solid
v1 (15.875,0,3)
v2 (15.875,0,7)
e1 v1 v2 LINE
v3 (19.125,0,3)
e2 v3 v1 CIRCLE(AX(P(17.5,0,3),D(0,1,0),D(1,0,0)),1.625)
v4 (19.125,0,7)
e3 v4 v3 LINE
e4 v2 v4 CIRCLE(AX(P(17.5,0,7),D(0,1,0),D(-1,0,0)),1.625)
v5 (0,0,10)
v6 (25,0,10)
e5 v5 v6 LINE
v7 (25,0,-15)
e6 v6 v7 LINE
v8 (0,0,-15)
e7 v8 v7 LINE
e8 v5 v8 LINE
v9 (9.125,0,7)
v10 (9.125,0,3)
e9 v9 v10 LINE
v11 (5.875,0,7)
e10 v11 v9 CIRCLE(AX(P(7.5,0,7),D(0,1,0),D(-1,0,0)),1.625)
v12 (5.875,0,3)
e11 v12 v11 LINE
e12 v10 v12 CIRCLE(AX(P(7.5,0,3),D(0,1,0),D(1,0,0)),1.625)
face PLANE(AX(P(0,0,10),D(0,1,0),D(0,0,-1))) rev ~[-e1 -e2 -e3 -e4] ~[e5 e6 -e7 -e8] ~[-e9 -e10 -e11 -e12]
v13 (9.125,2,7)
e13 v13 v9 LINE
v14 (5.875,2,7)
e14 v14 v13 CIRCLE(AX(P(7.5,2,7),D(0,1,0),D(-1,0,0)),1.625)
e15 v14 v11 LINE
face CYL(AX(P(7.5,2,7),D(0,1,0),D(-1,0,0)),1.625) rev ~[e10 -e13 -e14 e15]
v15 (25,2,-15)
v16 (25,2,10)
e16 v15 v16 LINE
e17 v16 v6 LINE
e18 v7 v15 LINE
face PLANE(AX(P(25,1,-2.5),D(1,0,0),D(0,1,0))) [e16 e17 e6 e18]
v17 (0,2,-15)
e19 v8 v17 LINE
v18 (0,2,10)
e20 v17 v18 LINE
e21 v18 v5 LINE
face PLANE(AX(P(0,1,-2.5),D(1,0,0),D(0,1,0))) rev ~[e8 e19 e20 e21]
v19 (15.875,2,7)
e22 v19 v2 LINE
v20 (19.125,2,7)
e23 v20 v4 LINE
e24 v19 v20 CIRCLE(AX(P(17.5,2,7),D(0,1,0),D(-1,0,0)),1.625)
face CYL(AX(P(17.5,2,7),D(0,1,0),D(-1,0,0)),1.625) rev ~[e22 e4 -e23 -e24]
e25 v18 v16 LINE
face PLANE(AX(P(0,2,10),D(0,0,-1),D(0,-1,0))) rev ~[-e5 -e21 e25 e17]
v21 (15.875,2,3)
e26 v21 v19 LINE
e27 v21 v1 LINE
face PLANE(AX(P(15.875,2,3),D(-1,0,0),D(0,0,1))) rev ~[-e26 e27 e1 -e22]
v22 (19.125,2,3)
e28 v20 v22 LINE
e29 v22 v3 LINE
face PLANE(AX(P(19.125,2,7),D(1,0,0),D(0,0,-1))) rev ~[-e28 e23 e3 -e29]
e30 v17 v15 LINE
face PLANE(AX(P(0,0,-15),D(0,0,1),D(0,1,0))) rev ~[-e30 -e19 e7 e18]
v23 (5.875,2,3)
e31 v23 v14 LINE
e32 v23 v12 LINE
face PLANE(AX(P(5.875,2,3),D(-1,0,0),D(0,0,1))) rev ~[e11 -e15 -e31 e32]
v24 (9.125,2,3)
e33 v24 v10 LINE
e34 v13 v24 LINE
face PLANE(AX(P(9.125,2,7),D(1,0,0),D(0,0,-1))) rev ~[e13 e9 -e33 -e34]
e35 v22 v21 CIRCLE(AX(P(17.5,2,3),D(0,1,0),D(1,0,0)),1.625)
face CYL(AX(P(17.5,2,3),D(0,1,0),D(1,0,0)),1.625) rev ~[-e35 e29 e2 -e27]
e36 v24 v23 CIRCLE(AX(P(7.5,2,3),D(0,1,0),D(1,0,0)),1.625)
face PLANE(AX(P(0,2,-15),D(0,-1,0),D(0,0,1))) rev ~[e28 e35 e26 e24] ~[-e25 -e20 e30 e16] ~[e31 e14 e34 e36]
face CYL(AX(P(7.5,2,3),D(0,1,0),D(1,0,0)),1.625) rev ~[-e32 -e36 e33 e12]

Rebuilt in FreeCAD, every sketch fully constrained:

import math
import FreeCAD as App
import Part
import Sketcher


def add_polygon(sketch, points):
    """Adds a closed chain of lines whose ends are joined by coincident constraints."""
    first, n = sketch.GeometryCount, len(points)
    for a, b in zip(points, points[1:] + points[:1]):
        sketch.addGeometry(Part.LineSegment(App.Vector(*a, 0), App.Vector(*b, 0)), False)
    for i in range(n):
        sketch.addConstraint(Sketcher.Constraint("Coincident", first + i, 2, first + (i + 1) % n, 1))

doc = App.newDocument("Part")
body = doc.addObject("PartDesign::Body", "Body")

sketch1 = body.newObject("Sketcher::SketchObject", "Sketch")
sketch1.AttachmentSupport = (doc.getObject("YZ_Plane"), [""])
sketch1.MapMode = "FlatFace"
add_polygon(sketch1, [(0, 10), (0, -15), (2, -15), (2, 10)])
sketch1.addConstraint(Sketcher.Constraint("Vertical", 0))
sketch1.addConstraint(Sketcher.Constraint("Horizontal", 1))
sketch1.addConstraint(Sketcher.Constraint("Vertical", 2))
sketch1.addConstraint(Sketcher.Constraint("Horizontal", 3))
sketch1.addConstraint(Sketcher.Constraint("PointOnObject", 0, 2, -2))
sketch1.addConstraint(Sketcher.Constraint("DistanceX", 1, 1, 1, 2, 2.0))
sketch1.addConstraint(Sketcher.Constraint("DistanceY", 0, 2, 0, 1, 25.0))
sketch1.addConstraint(Sketcher.Constraint("DistanceY", 0, 2, -1, 1, 15.0))
pad1 = body.newObject("PartDesign::Pad", "Pad")
pad1.Profile = sketch1
pad1.Length = 25

sketch2 = body.newObject("Sketcher::SketchObject", "Sketch001")
sketch2.AttachmentSupport = (doc.getObject("XZ_Plane"), [""])
sketch2.MapMode = "FlatFace"
sketch2.AttachmentOffset = App.Placement(App.Vector(0, 0, -2), App.Rotation())
sketch2.addGeometry(Part.LineSegment(App.Vector(15.875, 3, 0), App.Vector(15.875, 7, 0)), False)
sketch2.addGeometry(Part.ArcOfCircle(Part.Circle(App.Vector(17.5, 7, 0), App.Vector(0, 0, 1), 1.625), math.radians(0), math.radians(180)), False)
sketch2.addGeometry(Part.LineSegment(App.Vector(19.125, 7, 0), App.Vector(19.125, 3, 0)), False)
sketch2.addGeometry(Part.ArcOfCircle(Part.Circle(App.Vector(17.5, 3, 0), App.Vector(0, 0, 1), 1.625), math.radians(180), math.radians(360)), False)
sketch2.addGeometry(Part.LineSegment(App.Vector(5.875, 3, 0), App.Vector(5.875, 7, 0)), False)
sketch2.addGeometry(Part.ArcOfCircle(Part.Circle(App.Vector(7.5, 7, 0), App.Vector(0, 0, 1), 1.625), math.radians(0), math.radians(180)), False)
sketch2.addGeometry(Part.LineSegment(App.Vector(9.125, 7, 0), App.Vector(9.125, 3, 0)), False)
sketch2.addGeometry(Part.ArcOfCircle(Part.Circle(App.Vector(7.5, 3, 0), App.Vector(0, 0, 1), 1.625), math.radians(180), math.radians(360)), False)
sketch2.addConstraint(Sketcher.Constraint("Tangent", 0, 2, 1, 2))
sketch2.addConstraint(Sketcher.Constraint("Tangent", 1, 1, 2, 1))
sketch2.addConstraint(Sketcher.Constraint("Tangent", 2, 2, 3, 2))
sketch2.addConstraint(Sketcher.Constraint("Tangent", 3, 1, 0, 1))
sketch2.addConstraint(Sketcher.Constraint("Tangent", 4, 2, 5, 2))
sketch2.addConstraint(Sketcher.Constraint("Tangent", 5, 1, 6, 1))
sketch2.addConstraint(Sketcher.Constraint("Tangent", 6, 2, 7, 2))
sketch2.addConstraint(Sketcher.Constraint("Tangent", 7, 1, 4, 1))
sketch2.addConstraint(Sketcher.Constraint("Vertical", 0))
sketch2.addConstraint(Sketcher.Constraint("Vertical", 2))
sketch2.addConstraint(Sketcher.Constraint("Vertical", 4))
sketch2.addConstraint(Sketcher.Constraint("Vertical", 6))
sketch2.addConstraint(Sketcher.Constraint("Equal", 3, 5))
sketch2.addConstraint(Sketcher.Constraint("Horizontal", 1, 3, 5, 3))
sketch2.addConstraint(Sketcher.Constraint("Horizontal", 3, 3, 7, 3))
sketch2.addConstraint(Sketcher.Constraint("DistanceY", 0, 1, 0, 2, 4.0))
sketch2.addConstraint(Sketcher.Constraint("DistanceY", -1, 1, 1, 3, 7.0))
sketch2.addConstraint(Sketcher.Constraint("Radius", 1, 1.625))
sketch2.addConstraint(Sketcher.Constraint("DistanceX", 5, 3, 1, 3, 10.0))
sketch2.addConstraint(Sketcher.Constraint("DistanceX", -1, 1, 1, 3, 17.5))
pocket1 = body.newObject("PartDesign::Pocket", "Pocket")
pocket1.Profile = sketch2
pocket1.Length = 25
pocket1.Reversed = True

doc.recompute()
